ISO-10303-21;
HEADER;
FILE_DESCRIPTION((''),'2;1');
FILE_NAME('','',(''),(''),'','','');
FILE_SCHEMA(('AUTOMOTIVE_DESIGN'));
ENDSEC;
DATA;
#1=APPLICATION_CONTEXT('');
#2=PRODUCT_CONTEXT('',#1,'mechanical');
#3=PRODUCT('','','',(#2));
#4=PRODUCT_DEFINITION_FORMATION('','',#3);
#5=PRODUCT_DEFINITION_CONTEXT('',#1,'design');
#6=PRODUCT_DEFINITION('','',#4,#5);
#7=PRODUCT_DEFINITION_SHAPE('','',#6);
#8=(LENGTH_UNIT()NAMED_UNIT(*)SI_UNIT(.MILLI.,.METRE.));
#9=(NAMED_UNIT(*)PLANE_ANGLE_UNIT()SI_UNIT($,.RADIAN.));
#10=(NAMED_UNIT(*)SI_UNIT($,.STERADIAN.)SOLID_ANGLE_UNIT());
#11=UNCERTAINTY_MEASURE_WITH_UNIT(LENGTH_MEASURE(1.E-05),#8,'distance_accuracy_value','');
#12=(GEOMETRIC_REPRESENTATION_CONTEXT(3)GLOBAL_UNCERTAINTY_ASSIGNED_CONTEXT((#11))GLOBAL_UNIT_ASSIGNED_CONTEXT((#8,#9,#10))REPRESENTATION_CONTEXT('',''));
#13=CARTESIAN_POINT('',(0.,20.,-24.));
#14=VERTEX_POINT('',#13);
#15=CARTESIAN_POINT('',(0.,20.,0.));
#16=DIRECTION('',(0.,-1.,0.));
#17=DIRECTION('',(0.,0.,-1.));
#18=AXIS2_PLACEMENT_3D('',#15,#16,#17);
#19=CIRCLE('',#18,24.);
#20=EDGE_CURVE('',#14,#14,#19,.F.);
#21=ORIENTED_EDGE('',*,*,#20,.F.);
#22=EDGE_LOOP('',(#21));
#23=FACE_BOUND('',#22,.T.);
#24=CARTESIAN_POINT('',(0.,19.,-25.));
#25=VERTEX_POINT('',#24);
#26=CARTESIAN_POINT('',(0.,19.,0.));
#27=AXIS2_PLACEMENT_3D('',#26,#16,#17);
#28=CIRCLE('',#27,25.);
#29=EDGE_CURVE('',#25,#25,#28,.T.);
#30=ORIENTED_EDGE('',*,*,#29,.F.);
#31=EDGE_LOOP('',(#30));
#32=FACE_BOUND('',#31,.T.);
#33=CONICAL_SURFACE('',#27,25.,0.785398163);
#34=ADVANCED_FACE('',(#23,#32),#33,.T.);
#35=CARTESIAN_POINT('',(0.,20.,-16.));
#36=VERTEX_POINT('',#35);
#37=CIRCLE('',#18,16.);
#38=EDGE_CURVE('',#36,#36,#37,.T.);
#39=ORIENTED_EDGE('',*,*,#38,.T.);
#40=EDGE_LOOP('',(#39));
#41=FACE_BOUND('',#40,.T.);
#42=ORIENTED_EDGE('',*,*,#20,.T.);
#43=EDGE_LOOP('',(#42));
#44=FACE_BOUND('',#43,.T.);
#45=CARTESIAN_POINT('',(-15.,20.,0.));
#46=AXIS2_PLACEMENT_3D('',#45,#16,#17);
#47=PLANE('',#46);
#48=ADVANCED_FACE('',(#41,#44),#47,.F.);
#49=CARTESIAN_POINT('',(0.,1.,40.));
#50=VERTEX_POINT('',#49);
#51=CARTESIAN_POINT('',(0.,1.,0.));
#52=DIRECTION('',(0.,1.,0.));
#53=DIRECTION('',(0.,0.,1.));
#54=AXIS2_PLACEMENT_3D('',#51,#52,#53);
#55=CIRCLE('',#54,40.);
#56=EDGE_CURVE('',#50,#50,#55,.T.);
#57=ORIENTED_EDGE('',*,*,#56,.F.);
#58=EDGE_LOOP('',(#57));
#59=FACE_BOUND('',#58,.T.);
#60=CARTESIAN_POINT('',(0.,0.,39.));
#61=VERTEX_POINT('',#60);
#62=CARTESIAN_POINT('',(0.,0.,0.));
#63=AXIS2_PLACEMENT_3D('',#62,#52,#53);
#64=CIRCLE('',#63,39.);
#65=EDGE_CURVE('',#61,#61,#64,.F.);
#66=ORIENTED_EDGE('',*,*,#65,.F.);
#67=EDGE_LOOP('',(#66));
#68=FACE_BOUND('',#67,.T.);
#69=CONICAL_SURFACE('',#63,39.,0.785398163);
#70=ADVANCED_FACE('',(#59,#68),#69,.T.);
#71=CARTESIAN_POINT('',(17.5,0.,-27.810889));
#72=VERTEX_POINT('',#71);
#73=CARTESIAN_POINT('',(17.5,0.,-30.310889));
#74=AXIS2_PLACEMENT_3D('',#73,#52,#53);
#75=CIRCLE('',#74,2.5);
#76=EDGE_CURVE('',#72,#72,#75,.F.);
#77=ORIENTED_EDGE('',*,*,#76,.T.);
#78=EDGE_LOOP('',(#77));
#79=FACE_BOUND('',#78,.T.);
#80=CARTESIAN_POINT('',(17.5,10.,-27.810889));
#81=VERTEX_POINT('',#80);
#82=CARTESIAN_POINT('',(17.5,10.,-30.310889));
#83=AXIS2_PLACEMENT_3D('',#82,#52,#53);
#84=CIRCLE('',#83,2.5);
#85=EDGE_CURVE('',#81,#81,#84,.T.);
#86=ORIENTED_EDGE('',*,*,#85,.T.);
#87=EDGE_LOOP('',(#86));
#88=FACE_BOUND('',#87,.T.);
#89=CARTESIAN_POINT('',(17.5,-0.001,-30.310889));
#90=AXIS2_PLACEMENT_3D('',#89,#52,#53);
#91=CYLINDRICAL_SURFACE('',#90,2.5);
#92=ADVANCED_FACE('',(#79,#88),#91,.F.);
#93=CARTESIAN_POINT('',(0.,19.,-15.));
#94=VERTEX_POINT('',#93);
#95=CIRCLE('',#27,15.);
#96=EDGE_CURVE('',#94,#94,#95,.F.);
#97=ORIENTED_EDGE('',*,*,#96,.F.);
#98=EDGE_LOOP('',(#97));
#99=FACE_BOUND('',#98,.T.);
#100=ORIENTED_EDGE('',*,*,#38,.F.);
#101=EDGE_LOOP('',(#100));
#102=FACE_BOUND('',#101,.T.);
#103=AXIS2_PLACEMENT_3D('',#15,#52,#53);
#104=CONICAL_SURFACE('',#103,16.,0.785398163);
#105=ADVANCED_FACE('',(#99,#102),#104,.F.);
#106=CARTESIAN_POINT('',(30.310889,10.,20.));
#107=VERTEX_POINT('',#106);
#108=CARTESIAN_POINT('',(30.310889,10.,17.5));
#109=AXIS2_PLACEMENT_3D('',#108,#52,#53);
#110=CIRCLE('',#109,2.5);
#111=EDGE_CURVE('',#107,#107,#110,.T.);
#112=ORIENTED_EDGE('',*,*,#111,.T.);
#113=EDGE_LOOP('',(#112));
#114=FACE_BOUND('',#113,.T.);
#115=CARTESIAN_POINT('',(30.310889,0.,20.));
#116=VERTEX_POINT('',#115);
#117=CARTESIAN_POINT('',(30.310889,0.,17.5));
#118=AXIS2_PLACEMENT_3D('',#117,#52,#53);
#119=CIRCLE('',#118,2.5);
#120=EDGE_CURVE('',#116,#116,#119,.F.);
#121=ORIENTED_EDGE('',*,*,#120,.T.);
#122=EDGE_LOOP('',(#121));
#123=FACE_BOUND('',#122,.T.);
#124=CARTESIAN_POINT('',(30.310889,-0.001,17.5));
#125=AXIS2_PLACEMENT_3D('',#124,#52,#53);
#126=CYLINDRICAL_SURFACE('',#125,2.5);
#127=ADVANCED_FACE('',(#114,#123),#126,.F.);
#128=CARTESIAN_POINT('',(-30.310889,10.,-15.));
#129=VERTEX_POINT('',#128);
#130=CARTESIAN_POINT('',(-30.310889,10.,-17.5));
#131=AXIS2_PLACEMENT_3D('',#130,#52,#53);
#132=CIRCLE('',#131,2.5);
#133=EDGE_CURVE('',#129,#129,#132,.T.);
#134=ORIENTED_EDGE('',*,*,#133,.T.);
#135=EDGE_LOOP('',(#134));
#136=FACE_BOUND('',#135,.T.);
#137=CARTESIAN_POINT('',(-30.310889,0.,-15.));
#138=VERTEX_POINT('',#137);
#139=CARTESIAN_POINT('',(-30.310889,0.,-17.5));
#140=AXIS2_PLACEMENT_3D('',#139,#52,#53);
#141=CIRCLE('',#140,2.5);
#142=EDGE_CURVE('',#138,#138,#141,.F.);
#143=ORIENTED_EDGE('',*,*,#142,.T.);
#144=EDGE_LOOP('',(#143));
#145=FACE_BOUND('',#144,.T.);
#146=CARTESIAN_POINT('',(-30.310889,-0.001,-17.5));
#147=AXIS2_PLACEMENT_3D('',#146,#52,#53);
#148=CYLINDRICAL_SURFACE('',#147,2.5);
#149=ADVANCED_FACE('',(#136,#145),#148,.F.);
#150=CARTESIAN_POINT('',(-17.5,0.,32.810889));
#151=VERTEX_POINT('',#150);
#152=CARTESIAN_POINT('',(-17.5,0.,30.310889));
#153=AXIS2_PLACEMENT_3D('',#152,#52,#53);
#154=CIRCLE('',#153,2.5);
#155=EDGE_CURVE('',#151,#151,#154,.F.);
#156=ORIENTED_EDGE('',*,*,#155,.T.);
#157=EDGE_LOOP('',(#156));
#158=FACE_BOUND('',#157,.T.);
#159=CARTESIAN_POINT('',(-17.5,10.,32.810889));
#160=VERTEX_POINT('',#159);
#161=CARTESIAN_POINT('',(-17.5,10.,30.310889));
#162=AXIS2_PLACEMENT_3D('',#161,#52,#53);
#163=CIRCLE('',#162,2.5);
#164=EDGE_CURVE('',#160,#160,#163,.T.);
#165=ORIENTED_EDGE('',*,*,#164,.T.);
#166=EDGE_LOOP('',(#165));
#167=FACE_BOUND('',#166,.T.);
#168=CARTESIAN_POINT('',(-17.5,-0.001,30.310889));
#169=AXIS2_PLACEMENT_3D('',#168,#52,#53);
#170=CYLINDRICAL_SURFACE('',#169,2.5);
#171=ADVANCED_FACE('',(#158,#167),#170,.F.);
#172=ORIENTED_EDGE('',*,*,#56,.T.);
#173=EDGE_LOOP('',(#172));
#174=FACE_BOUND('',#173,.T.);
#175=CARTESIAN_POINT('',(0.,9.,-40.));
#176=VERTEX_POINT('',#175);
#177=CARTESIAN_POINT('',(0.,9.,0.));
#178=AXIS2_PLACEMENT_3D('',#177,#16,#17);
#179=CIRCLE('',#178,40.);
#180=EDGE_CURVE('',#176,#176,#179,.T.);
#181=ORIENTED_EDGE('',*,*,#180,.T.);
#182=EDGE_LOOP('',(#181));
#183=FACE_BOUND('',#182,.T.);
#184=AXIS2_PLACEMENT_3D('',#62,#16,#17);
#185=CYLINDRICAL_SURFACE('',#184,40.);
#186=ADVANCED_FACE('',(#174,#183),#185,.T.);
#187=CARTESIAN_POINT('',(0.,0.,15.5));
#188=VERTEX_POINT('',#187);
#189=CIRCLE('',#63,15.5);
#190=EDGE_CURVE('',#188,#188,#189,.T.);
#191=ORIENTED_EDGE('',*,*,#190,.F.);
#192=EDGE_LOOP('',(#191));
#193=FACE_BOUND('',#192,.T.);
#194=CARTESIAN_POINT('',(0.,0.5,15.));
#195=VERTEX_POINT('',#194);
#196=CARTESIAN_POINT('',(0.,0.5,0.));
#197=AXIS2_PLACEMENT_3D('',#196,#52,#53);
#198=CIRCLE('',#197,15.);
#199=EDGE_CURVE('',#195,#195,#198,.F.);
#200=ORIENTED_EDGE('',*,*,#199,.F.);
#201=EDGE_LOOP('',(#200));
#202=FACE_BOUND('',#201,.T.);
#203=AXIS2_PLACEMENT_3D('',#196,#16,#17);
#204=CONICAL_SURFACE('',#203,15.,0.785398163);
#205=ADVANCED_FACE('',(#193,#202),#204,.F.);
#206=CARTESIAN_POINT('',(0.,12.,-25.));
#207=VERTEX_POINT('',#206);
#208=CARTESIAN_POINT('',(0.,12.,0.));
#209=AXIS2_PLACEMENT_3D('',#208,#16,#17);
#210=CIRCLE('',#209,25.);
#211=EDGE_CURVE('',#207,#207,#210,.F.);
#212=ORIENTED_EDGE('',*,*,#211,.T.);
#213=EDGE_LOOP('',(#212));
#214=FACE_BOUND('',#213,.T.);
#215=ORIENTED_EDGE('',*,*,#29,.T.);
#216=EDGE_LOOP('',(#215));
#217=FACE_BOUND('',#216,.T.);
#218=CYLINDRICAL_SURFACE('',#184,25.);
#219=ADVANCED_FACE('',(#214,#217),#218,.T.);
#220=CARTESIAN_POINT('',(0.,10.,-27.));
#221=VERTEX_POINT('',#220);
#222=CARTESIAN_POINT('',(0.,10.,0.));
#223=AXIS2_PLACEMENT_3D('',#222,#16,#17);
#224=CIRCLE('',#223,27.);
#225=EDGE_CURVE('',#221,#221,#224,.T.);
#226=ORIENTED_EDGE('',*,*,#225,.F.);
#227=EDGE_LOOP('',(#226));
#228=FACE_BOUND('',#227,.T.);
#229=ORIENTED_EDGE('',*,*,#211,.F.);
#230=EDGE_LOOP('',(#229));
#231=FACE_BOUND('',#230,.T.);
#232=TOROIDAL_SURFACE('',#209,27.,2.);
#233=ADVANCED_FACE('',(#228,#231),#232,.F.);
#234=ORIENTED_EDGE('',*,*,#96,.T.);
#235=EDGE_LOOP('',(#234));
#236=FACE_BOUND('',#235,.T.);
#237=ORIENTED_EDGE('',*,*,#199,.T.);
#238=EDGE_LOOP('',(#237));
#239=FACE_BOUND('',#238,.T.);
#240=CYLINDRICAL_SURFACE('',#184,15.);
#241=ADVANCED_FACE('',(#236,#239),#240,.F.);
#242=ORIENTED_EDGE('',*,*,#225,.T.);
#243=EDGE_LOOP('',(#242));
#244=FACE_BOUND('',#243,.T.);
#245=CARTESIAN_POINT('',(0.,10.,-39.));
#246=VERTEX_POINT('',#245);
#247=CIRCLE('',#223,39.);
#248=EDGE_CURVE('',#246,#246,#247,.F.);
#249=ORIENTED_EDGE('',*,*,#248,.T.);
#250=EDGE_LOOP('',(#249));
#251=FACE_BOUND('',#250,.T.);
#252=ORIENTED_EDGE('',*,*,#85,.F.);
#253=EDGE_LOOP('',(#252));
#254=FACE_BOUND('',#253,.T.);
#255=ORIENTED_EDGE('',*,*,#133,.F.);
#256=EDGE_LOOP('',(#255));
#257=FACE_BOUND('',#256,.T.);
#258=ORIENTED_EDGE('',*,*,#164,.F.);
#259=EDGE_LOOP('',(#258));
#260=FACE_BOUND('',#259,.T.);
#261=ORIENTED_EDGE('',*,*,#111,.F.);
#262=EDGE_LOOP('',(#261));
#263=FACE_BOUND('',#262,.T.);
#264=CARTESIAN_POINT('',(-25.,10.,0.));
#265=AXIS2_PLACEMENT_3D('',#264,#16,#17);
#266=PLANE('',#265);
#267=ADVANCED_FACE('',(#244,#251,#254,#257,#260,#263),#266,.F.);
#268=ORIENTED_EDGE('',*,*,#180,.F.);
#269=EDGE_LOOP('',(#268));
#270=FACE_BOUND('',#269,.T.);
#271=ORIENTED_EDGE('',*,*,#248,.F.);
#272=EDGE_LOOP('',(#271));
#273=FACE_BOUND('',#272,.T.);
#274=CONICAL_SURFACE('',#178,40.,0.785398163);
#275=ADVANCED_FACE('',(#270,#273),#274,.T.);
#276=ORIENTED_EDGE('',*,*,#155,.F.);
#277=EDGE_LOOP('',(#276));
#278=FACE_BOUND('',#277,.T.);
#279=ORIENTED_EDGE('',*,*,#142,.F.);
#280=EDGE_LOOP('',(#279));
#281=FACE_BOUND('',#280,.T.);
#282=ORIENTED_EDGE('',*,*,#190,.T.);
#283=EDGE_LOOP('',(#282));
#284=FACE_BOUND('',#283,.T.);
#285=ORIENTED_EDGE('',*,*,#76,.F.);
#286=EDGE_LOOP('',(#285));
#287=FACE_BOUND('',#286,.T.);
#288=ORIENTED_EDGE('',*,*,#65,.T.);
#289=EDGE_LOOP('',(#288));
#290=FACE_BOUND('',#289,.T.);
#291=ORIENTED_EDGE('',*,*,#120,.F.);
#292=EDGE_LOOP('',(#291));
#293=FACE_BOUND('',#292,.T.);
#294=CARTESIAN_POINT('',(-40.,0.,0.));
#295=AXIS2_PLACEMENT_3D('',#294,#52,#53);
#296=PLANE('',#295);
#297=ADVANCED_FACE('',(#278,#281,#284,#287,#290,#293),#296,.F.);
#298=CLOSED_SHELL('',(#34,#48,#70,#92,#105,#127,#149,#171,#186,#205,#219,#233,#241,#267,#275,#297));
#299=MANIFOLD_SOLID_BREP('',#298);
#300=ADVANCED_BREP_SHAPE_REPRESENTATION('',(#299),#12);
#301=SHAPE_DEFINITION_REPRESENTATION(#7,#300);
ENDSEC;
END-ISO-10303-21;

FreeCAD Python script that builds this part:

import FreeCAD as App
import Part
import Sketcher

V = App.Vector
Q = App.Units.Quantity


def edges_at(feature, points):
    """Names of the edges that pass closest to the given points."""
    edges = feature.Shape.Edges
    near = lambda p: min(range(len(edges)), key=lambda i: edges[i].distToShape(Part.Vertex(*p))[0])
    return sorted({f"Edge{near(p) + 1}" for p in points})

doc = App.newDocument("Part")
body = doc.addObject("PartDesign::Body", "Body")

# Sketch on XY plane
sketch1 = doc.addObject("Sketcher::SketchObject", "Sketch")
body.addObject(sketch1)
sketch1.AttachmentSupport = (doc.XY_Plane, [""])
sketch1.MapMode = "FlatFace"
sketch1.addGeometry(Part.LineSegment(V(-15, 0, 0), V(-15, 20, 0)), False)
sketch1.addGeometry(Part.LineSegment(V(-15, 20, 0), V(-25, 20, 0)), False)
sketch1.addGeometry(Part.LineSegment(V(-25, 20, 0), V(-25, 10, 0)), False)
sketch1.addGeometry(Part.LineSegment(V(-25, 10, 0), V(-40, 10, 0)), False)
sketch1.addGeometry(Part.LineSegment(V(-40, 10, 0), V(-40, 0, 0)), False)
sketch1.addGeometry(Part.LineSegment(V(-40, 0, 0), V(-15, 0, 0)), False)
sketch1.addConstraint(Sketcher.Constraint("Coincident", 0, 2, 1, 1))
sketch1.addConstraint(Sketcher.Constraint("Coincident", 1, 2, 2, 1))
sketch1.addConstraint(Sketcher.Constraint("Coincident", 2, 2, 3, 1))
sketch1.addConstraint(Sketcher.Constraint("Coincident", 3, 2, 4, 1))
sketch1.addConstraint(Sketcher.Constraint("Coincident", 4, 2, 5, 1))
sketch1.addConstraint(Sketcher.Constraint("Coincident", 5, 2, 0, 1))
sketch1.addConstraint(Sketcher.Constraint("Vertical", 0))
sketch1.addConstraint(Sketcher.Constraint("Horizontal", 1))
sketch1.addConstraint(Sketcher.Constraint("Vertical", 2))
sketch1.addConstraint(Sketcher.Constraint("Horizontal", 3))
sketch1.addConstraint(Sketcher.Constraint("Vertical", 4))
sketch1.addConstraint(Sketcher.Constraint("Horizontal", 5))
sketch1.addConstraint(Sketcher.Constraint("PointOnObject", 4, 2, -1))
sketch1.addConstraint(Sketcher.Constraint("Equal", 1, 2))
sketch1.addConstraint(Sketcher.Constraint("Equal", 2, 4))
sketch1.addConstraint(Sketcher.Constraint("DistanceX", 1, 2, 1, 1, Q("10 mm")))
sketch1.addConstraint(Sketcher.Constraint("DistanceX", 3, 2, 3, 1, Q("15 mm")))
sketch1.addConstraint(Sketcher.Constraint("DistanceX", 0, 2, -1, 1, Q("15 mm")))
revolution = doc.addObject("PartDesign::Revolution", "Revolution")
body.addObject(revolution)
revolution.Profile = sketch1
revolution.ReferenceAxis = (sketch1, ["V_Axis"])
revolution.Angle = 360
doc.recompute()

chamfer = doc.addObject("PartDesign::Chamfer", "Chamfer")
body.addObject(chamfer)
chamfer.Base = (revolution, edges_at(revolution, [(0, 20, 15)]))
chamfer.Size = 1

# Sketch on XZ plane
sketch2 = doc.addObject("Sketcher::SketchObject", "Sketch001")
body.addObject(sketch2)
sketch2.AttachmentSupport = (doc.XZ_Plane, [""])
sketch2.MapMode = "FlatFace"
sketch2.AttachmentOffset = App.Placement(V(0, 0, -10), App.Rotation())
sketch2.addGeometry(Part.Circle(V(17.5, -30.310889, 0), V(0, 0, 1), 2.5), False)
sketch2.addConstraint(Sketcher.Constraint("Diameter", 0, Q("5 mm")))
sketch2.addConstraint(Sketcher.Constraint("DistanceX", -1, 1, 0, 3, Q("17.5 mm")))
sketch2.addConstraint(Sketcher.Constraint("DistanceY", 0, 3, -1, 1, Q("30.310889 mm")))
pocket1 = doc.addObject("PartDesign::Pocket", "Pocket")
body.addObject(pocket1)
pocket1.Profile = sketch2
pocket1.Type = "UpToFirst"
pocket1.Reversed = True

# Sketch on XZ plane
sketch3 = doc.addObject("Sketcher::SketchObject", "Sketch002")
body.addObject(sketch3)
sketch3.AttachmentSupport = (doc.XZ_Plane, [""])
sketch3.MapMode = "FlatFace"
sketch3.AttachmentOffset = App.Placement(V(0, 0, -10), App.Rotation())
sketch3.addGeometry(Part.Circle(V(30.310889, 17.5, 0), V(0, 0, 1), 2.5), False)
sketch3.addConstraint(Sketcher.Constraint("Diameter", 0, Q("5 mm")))
sketch3.addConstraint(Sketcher.Constraint("DistanceY", -1, 1, 0, 3, Q("17.5 mm")))
sketch3.addConstraint(Sketcher.Constraint("DistanceX", -1, 1, 0, 3, Q("30.310889 mm")))
pocket2 = doc.addObject("PartDesign::Pocket", "Pocket001")
body.addObject(pocket2)
pocket2.Profile = sketch3
pocket2.Type = "UpToFirst"
pocket2.Reversed = True

# Sketch on XZ plane
sketch4 = doc.addObject("Sketcher::SketchObject", "Sketch003")
body.addObject(sketch4)
sketch4.AttachmentSupport = (doc.XZ_Plane, [""])
sketch4.MapMode = "FlatFace"
sketch4.AttachmentOffset = App.Placement(V(0, 0, -10), App.Rotation())
sketch4.addGeometry(Part.Circle(V(-17.5, 30.310889, 0), V(0, 0, 1), 2.5), False)
sketch4.addConstraint(Sketcher.Constraint("Diameter", 0, Q("5 mm")))
sketch4.addConstraint(Sketcher.Constraint("DistanceX", 0, 3, -1, 1, Q("17.5 mm")))
sketch4.addConstraint(Sketcher.Constraint("DistanceY", -1, 1, 0, 3, Q("30.310889 mm")))
pocket3 = doc.addObject("PartDesign::Pocket", "Pocket002")
body.addObject(pocket3)
pocket3.Profile = sketch4
pocket3.Type = "UpToFirst"
pocket3.Reversed = True

# Sketch on XZ plane
sketch5 = doc.addObject("Sketcher::SketchObject", "Sketch004")
body.addObject(sketch5)
sketch5.AttachmentSupport = (doc.XZ_Plane, [""])
sketch5.MapMode = "FlatFace"
sketch5.AttachmentOffset = App.Placement(V(0, 0, -10), App.Rotation())
sketch5.addGeometry(Part.Circle(V(-30.310889, -17.5, 0), V(0, 0, 1), 2.5), False)
sketch5.addConstraint(Sketcher.Constraint("Diameter", 0, Q("5 mm")))
sketch5.addConstraint(Sketcher.Constraint("DistanceY", 0, 3, -1, 1, Q("17.5 mm")))
sketch5.addConstraint(Sketcher.Constraint("DistanceX", 0, 3, -1, 1, Q("30.310889 mm")))
pocket4 = doc.addObject("PartDesign::Pocket", "Pocket003")
body.addObject(pocket4)
pocket4.Profile = sketch5
pocket4.Type = "UpToFirst"
pocket4.Reversed = True
doc.recompute()

fillet = doc.addObject("PartDesign::Fillet", "Fillet")
body.addObject(fillet)
fillet.Base = (pocket4, edges_at(pocket4, [(0, 10, 25)]))
fillet.Radius = 2
doc.recompute()

chamfer2 = doc.addObject("PartDesign::Chamfer", "Chamfer001")
body.addObject(chamfer2)
chamfer2.Base = (fillet, edges_at(fillet, [(0, 0, 40), (0, 10, 40), (0, 20, 25)]))
chamfer2.Size = 1
doc.recompute()

chamfer3 = doc.addObject("PartDesign::Chamfer", "Chamfer002")
body.addObject(chamfer3)
chamfer3.Base = (chamfer2, edges_at(chamfer2, [(0, 0, 15)]))
chamfer3.Size = 0.5

doc.recompute()
